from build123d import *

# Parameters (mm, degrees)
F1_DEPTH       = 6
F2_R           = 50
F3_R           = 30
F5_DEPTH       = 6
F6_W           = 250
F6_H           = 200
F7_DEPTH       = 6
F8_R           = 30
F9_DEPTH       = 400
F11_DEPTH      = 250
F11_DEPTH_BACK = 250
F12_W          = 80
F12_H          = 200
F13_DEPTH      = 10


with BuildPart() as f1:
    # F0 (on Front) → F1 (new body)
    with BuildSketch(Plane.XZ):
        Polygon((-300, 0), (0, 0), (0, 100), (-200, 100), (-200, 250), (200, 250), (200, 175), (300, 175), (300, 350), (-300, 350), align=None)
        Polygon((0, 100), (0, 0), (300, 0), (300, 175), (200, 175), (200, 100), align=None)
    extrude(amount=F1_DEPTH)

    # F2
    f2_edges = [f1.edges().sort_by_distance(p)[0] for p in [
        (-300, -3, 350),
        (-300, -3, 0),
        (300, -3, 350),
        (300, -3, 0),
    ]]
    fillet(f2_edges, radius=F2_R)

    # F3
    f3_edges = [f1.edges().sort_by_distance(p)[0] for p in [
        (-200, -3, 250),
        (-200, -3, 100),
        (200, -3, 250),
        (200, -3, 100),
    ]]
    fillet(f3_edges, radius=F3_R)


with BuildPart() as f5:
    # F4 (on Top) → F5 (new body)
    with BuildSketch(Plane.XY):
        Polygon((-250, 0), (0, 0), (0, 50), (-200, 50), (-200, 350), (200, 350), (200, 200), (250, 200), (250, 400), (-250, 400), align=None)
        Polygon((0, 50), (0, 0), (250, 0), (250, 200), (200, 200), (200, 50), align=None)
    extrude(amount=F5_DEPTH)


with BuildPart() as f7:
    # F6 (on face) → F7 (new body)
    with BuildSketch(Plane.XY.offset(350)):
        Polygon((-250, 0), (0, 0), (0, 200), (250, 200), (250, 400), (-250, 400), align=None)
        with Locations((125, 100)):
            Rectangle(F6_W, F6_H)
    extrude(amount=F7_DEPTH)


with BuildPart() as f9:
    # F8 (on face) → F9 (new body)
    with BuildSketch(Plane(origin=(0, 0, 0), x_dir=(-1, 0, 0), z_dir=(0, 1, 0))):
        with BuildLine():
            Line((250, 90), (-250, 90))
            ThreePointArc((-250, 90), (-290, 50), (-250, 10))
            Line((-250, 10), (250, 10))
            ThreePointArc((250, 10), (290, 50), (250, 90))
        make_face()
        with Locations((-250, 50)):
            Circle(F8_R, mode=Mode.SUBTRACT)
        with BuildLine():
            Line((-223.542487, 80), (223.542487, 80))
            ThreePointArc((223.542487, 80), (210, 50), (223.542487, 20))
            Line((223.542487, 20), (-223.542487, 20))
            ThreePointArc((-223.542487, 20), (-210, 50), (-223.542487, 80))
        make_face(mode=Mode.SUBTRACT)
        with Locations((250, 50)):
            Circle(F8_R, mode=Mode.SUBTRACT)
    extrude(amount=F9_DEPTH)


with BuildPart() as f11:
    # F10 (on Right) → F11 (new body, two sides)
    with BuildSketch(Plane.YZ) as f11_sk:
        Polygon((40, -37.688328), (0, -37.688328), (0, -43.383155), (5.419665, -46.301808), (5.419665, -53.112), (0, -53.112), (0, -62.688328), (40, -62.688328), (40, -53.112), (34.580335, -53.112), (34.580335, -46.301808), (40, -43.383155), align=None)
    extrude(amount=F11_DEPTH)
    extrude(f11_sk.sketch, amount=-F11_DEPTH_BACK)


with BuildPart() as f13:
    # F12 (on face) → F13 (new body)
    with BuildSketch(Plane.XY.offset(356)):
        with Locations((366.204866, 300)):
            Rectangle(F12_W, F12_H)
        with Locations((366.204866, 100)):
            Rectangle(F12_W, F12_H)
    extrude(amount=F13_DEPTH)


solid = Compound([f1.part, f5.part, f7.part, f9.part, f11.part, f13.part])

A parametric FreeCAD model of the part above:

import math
import FreeCAD as App
import Part
import Sketcher
from FreeCAD import Vector


def edges_at(feature, points):
    """Names of the edges that pass closest to the given points."""
    edges = feature.Shape.Edges
    near = lambda p: min(range(len(edges)), key=lambda i: edges[i].distToShape(Part.Vertex(*p))[0])
    return sorted({f"Edge{near(p) + 1}" for p in points})

doc = App.newDocument("Part")
body = doc.addObject("PartDesign::Body", "Body")

# Sketch on XZ plane
sketch1 = doc.addObject("Sketcher::SketchObject", "Sketch")
body.addObject(sketch1)
sketch1.AttachmentSupport = (doc.XZ_Plane, [""])
sketch1.MapMode = "FlatFace"
sketch1.addGeometry([
    Part.LineSegment(Vector(-300, 0, 0), Vector(300, 0, 0)),  # 0
    Part.LineSegment(Vector(300, 0, 0), Vector(300, 350, 0)),  # 1
    Part.LineSegment(Vector(300, 350, 0), Vector(-300, 350, 0)),  # 2
    Part.LineSegment(Vector(-300, 350, 0), Vector(-300, 0, 0)),  # 3
    Part.LineSegment(Vector(-200, 100, 0), Vector(-200, 250, 0)),  # 4
    Part.LineSegment(Vector(-200, 250, 0), Vector(200, 250, 0)),  # 5
    Part.LineSegment(Vector(200, 250, 0), Vector(200, 100, 0)),  # 6
    Part.LineSegment(Vector(200, 100, 0), Vector(-200, 100, 0)),  # 7
], False)
sketch1.addConstraint([
    Sketcher.Constraint("Coincident", 0, 2, 1, 1),
    Sketcher.Constraint("Coincident", 1, 2, 2, 1),
    Sketcher.Constraint("Coincident", 2, 2, 3, 1),
    Sketcher.Constraint("Coincident", 3, 2, 0, 1),
    Sketcher.Constraint("Coincident", 4, 2, 5, 1),
    Sketcher.Constraint("Coincident", 5, 2, 6, 1),
    Sketcher.Constraint("Coincident", 6, 2, 7, 1),
    Sketcher.Constraint("Coincident", 7, 2, 4, 1),
    Sketcher.Constraint("Horizontal", 0),
    Sketcher.Constraint("Vertical", 1),
    Sketcher.Constraint("Horizontal", 2),
    Sketcher.Constraint("Vertical", 3),
    Sketcher.Constraint("Vertical", 4),
    Sketcher.Constraint("Horizontal", 5),
    Sketcher.Constraint("Vertical", 6),
    Sketcher.Constraint("Horizontal", 7),
    Sketcher.Constraint("Symmetric", 0, 2, 3, 2, -1, 1),
    Sketcher.Constraint("DistanceX", 0, 1, 0, 2, 600.0),
    Sketcher.Constraint("DistanceX", 5, 1, 5, 2, 400.0),
    Sketcher.Constraint("DistanceY", 1, 1, 1, 2, 350.0),
    Sketcher.Constraint("DistanceY", 4, 1, 4, 2, 150.0),
    Sketcher.Constraint("DistanceX", 4, 2, -1, 1, 200.0),
    Sketcher.Constraint("DistanceY", -1, 1, 4, 2, 250.0),
])
pad1 = doc.addObject("PartDesign::Pad", "Pad")
body.addObject(pad1)
pad1.Profile = sketch1
pad1.Length = 6
doc.recompute()

fillet = doc.addObject("PartDesign::Fillet", "Fillet")
body.addObject(fillet)
fillet.Base = (pad1, edges_at(pad1, [
    (-300, -3, 350),
    (-300, -3, 0),
    (300, -3, 350),
    (300, -3, 0),
]))
fillet.Radius = 50
doc.recompute()

fillet2 = doc.addObject("PartDesign::Fillet", "Fillet001")
body.addObject(fillet2)
fillet2.Base = (fillet, edges_at(fillet, [
    (-200, -3, 250),
    (-200, -3, 100),
    (200, -3, 250),
    (200, -3, 100),
]))
fillet2.Radius = 30
body2 = doc.addObject("PartDesign::Body", "Body001")

# Sketch on XY plane
sketch2 = doc.addObject("Sketcher::SketchObject", "Sketch001")
body2.addObject(sketch2)
sketch2.AttachmentSupport = (doc.getObject("XY_Plane001"), [""])
sketch2.MapMode = "FlatFace"
sketch2.addGeometry([
    Part.LineSegment(Vector(-250, 0, 0), Vector(250, 0, 0)),  # 0
    Part.LineSegment(Vector(250, 0, 0), Vector(250, 400, 0)),  # 1
    Part.LineSegment(Vector(250, 400, 0), Vector(-250, 400, 0)),  # 2
    Part.LineSegment(Vector(-250, 400, 0), Vector(-250, 0, 0)),  # 3
    Part.LineSegment(Vector(-200, 50, 0), Vector(-200, 350, 0)),  # 4
    Part.LineSegment(Vector(-200, 350, 0), Vector(200, 350, 0)),  # 5
    Part.LineSegment(Vector(200, 350, 0), Vector(200, 50, 0)),  # 6
    Part.LineSegment(Vector(200, 50, 0), Vector(-200, 50, 0)),  # 7
], False)
sketch2.addConstraint([
    Sketcher.Constraint("Coincident", 0, 2, 1, 1),
    Sketcher.Constraint("Coincident", 1, 2, 2, 1),
    Sketcher.Constraint("Coincident", 2, 2, 3, 1),
    Sketcher.Constraint("Coincident", 3, 2, 0, 1),
    Sketcher.Constraint("Coincident", 4, 2, 5, 1),
    Sketcher.Constraint("Coincident", 5, 2, 6, 1),
    Sketcher.Constraint("Coincident", 6, 2, 7, 1),
    Sketcher.Constraint("Coincident", 7, 2, 4, 1),
    Sketcher.Constraint("Horizontal", 0),
    Sketcher.Constraint("Vertical", 1),
    Sketcher.Constraint("Horizontal", 2),
    Sketcher.Constraint("Vertical", 3),
    Sketcher.Constraint("Vertical", 4),
    Sketcher.Constraint("Horizontal", 5),
    Sketcher.Constraint("Vertical", 6),
    Sketcher.Constraint("Horizontal", 7),
    Sketcher.Constraint("Symmetric", 0, 2, 3, 2, -1, 1),
    Sketcher.Constraint("Equal", 7, 1),
    Sketcher.Constraint("DistanceX", 0, 1, 0, 2, 500.0),
    Sketcher.Constraint("DistanceX", 5, 1, 5, 2, 400.0),
    Sketcher.Constraint("DistanceY", 4, 1, 4, 2, 300.0),
    Sketcher.Constraint("DistanceX", 4, 2, -1, 1, 200.0),
    Sketcher.Constraint("DistanceY", -1, 1, 4, 2, 350.0),
])
pad2 = doc.addObject("PartDesign::Pad", "Pad001")
body2.addObject(pad2)
pad2.Profile = sketch2
pad2.Length = 6
body3 = doc.addObject("PartDesign::Body", "Body002")

# Sketch on XY plane
sketch3 = doc.addObject("Sketcher::SketchObject", "Sketch002")
body3.addObject(sketch3)
sketch3.AttachmentSupport = (doc.getObject("XY_Plane002"), [""])
sketch3.MapMode = "FlatFace"
sketch3.AttachmentOffset = App.Placement(Vector(0, 0, 350), App.Rotation())
sketch3.addGeometry([
    Part.LineSegment(Vector(-250, 0, 0), Vector(250, 0, 0)),
    Part.LineSegment(Vector(250, 0, 0), Vector(250, 400, 0)),
    Part.LineSegment(Vector(250, 400, 0), Vector(-250, 400, 0)),
    Part.LineSegment(Vector(-250, 400, 0), Vector(-250, 0, 0)),
], False)
sketch3.addConstraint([
    Sketcher.Constraint("Coincident", 0, 2, 1, 1),
    Sketcher.Constraint("Coincident", 1, 2, 2, 1),
    Sketcher.Constraint("Coincident", 2, 2, 3, 1),
    Sketcher.Constraint("Coincident", 3, 2, 0, 1),
    Sketcher.Constraint("Horizontal", 0),
    Sketcher.Constraint("Vertical", 1),
    Sketcher.Constraint("Horizontal", 2),
    Sketcher.Constraint("Vertical", 3),
    Sketcher.Constraint("Symmetric", 0, 2, 3, 2, -1, 1),
    Sketcher.Constraint("DistanceX", 0, 1, 0, 2, 500.0),
    Sketcher.Constraint("DistanceY", 1, 1, 1, 2, 400.0),
])
pad3 = doc.addObject("PartDesign::Pad", "Pad002")
body3.addObject(pad3)
pad3.Profile = sketch3
pad3.Length = 6
body4 = doc.addObject("PartDesign::Body", "Body003")

# Sketch on XZ plane
sketch4 = doc.addObject("Sketcher::SketchObject", "Sketch003")
body4.addObject(sketch4)
sketch4.AttachmentSupport = (doc.getObject("XZ_Plane003"), [""])
sketch4.MapMode = "FlatFace"
sketch4.addGeometry([
    Part.LineSegment(Vector(-250, 90, 0), Vector(250, 90, 0)),  # 0
    Part.ArcOfCircle(Part.Circle(Vector(250, 50, 0), Vector(0, 0, 1), 40), math.radians(-90), math.radians(90)),  # 1
    Part.LineSegment(Vector(250, 10, 0), Vector(-250, 10, 0)),  # 2
    Part.ArcOfCircle(Part.Circle(Vector(-250, 50, 0), Vector(0, 0, 1), 40), math.radians(90), math.radians(270)),  # 3
    Part.Circle(Vector(250, 50, 0), Vector(0, 0, 1), 30),  # 4
    Part.ArcOfCircle(Part.Circle(Vector(250, 50, 0), Vector(0, 0, 1), 40), math.radians(131), math.radians(229)),  # 5
    Part.LineSegment(Vector(224, 80, 0), Vector(-224, 80, 0)),  # 6
    Part.ArcOfCircle(Part.Circle(Vector(-250, 50, 0), Vector(0, 0, 1), 40), math.radians(-49), math.radians(49)),  # 7
    Part.LineSegment(Vector(-224, 20, 0), Vector(224, 20, 0)),  # 8
    Part.Circle(Vector(-250, 50, 0), Vector(0, 0, 1), 30),  # 9
], False)
sketch4.addConstraint([
    Sketcher.Constraint("Tangent", 0, 2, 1, 2),
    Sketcher.Constraint("Tangent", 1, 1, 2, 1),
    Sketcher.Constraint("Tangent", 2, 2, 3, 2),
    Sketcher.Constraint("Tangent", 3, 1, 0, 1),
    Sketcher.Constraint("Coincident", 5, 1, 6, 1),
    Sketcher.Constraint("Coincident", 6, 2, 7, 2),
    Sketcher.Constraint("Coincident", 7, 1, 8, 1),
    Sketcher.Constraint("Coincident", 8, 2, 5, 2),
    Sketcher.Constraint("Horizontal", 0),
    Sketcher.Constraint("Horizontal", 2),
    Sketcher.Constraint("Horizontal", 6),
    Sketcher.Constraint("Horizontal", 8),
    Sketcher.Constraint("Coincident", 4, 3, 1, 3),
    Sketcher.Constraint("Coincident", 5, 3, 1, 3),
    Sketcher.Constraint("Coincident", 7, 3, 3, 3),
    Sketcher.Constraint("Coincident", 9, 3, 3, 3),
    Sketcher.Constraint("Equal", 3, 5),
    Sketcher.Constraint("Equal", 5, 7),
    Sketcher.Constraint("Equal", 4, 9),
    Sketcher.Constraint("Vertical", 6, 2, 7, 1),
    Sketcher.Constraint("Diameter", 4, 60.0),
    Sketcher.Constraint("Radius", 1, 40.0),
    Sketcher.Constraint("DistanceX", 0, 1, 0, 2, 500.0),
    Sketcher.Constraint("DistanceX", -1, 1, 1, 3, 250.0),
    Sketcher.Constraint("DistanceY", -1, 1, 1, 3, 50.0),
    Sketcher.Constraint("DistanceY", -1, 1, 5, 1, 80.0),
])
pad4 = doc.addObject("PartDesign::Pad", "Pad003")
body4.addObject(pad4)
pad4.Profile = sketch4
pad4.Length = 400
pad4.Reversed = True
body5 = doc.addObject("PartDesign::Body", "Body004")

# Sketch on YZ plane
sketch5 = doc.addObject("Sketcher::SketchObject", "Sketch004")
body5.addObject(sketch5)
sketch5.AttachmentSupport = (doc.getObject("YZ_Plane004"), [""])
sketch5.MapMode = "FlatFace"
sketch5.addGeometry([
    Part.LineSegment(Vector(40, -38, 0), Vector(0, -38, 0)),  # 0
    Part.LineSegment(Vector(0, -38, 0), Vector(0, -43, 0)),  # 1
    Part.LineSegment(Vector(0, -43, 0), Vector(5, -46, 0)),  # 2
    Part.LineSegment(Vector(5, -46, 0), Vector(5, -53, 0)),  # 3
    Part.LineSegment(Vector(5, -53, 0), Vector(0, -53, 0)),  # 4
    Part.LineSegment(Vector(0, -53, 0), Vector(0, -63, 0)),  # 5
    Part.LineSegment(Vector(0, -63, 0), Vector(40, -63, 0)),  # 6
    Part.LineSegment(Vector(40, -63, 0), Vector(40, -53, 0)),  # 7
    Part.LineSegment(Vector(40, -53, 0), Vector(35, -53, 0)),  # 8
    Part.LineSegment(Vector(35, -53, 0), Vector(35, -46, 0)),  # 9
    Part.LineSegment(Vector(35, -46, 0), Vector(40, -43, 0)),  # 10
    Part.LineSegment(Vector(40, -43, 0), Vector(40, -38, 0)),  # 11
], False)
sketch5.addConstraint([
    Sketcher.Constraint("Coincident", 0, 2, 1, 1),
    Sketcher.Constraint("Coincident", 1, 2, 2, 1),
    Sketcher.Constraint("Coincident", 2, 2, 3, 1),
    Sketcher.Constraint("Coincident", 3, 2, 4, 1),
    Sketcher.Constraint("Coincident", 4, 2, 5, 1),
    Sketcher.Constraint("Coincident", 5, 2, 6, 1),
    Sketcher.Constraint("Coincident", 6, 2, 7, 1),
    Sketcher.Constraint("Coincident", 7, 2, 8, 1),
    Sketcher.Constraint("Coincident", 8, 2, 9, 1),
    Sketcher.Constraint("Coincident", 9, 2, 10, 1),
    Sketcher.Constraint("Coincident", 10, 2, 11, 1),
    Sketcher.Constraint("Coincident", 11, 2, 0, 1),
    Sketcher.Constraint("Horizontal", 0),
    Sketcher.Constraint("Vertical", 1),
    Sketcher.Constraint("Vertical", 3),
    Sketcher.Constraint("Horizontal", 4),
    Sketcher.Constraint("Vertical", 5),
    Sketcher.Constraint("Horizontal", 6),
    Sketcher.Constraint("Vertical", 7),
    Sketcher.Constraint("Horizontal", 8),
    Sketcher.Constraint("Vertical", 9),
    Sketcher.Constraint("Vertical", 11),
    Sketcher.Constraint("PointOnObject", 0, 2, -2),
    Sketcher.Constraint("PointOnObject", 4, 2, -2),
    Sketcher.Constraint("Horizontal", 4, 2, 7, 2),
    Sketcher.Constraint("Horizontal", 2, 2, 9, 2),
    Sketcher.Constraint("Horizontal", 1, 2, 10, 2),
    Sketcher.Constraint("Vertical", 7, 2, 10, 2),
    Sketcher.Constraint("Equal", 4, 8),
    Sketcher.Constraint("DistanceX", 0, 2, 0, 1, 40.0),
    Sketcher.Constraint("DistanceY", 5, 2, 0, 2, 25.0),
    Sketcher.Constraint("DistanceY", 3, 2, -1, 1, 53.112),
    Sketcher.Constraint("Distance", 2, 6.155591),
    Sketcher.Constraint("DistanceX", 4, 2, 4, 1, 5.419665),
    Sketcher.Constraint("DistanceY", 1, 2, 1, 1, 5.694827),
    Sketcher.Constraint("DistanceY", 3, 2, 3, 1, 6.810192),
])
pad5 = doc.addObject("PartDesign::Pad", "Pad004")
body5.addObject(pad5)
pad5.Profile = sketch5
pad5.Type = "TwoLengths"
pad5.Length = 250
pad5.Length2 = 250
body6 = doc.addObject("PartDesign::Body", "Body005")

# Sketch on XY plane
sketch6 = doc.addObject("Sketcher::SketchObject", "Sketch005")
body6.addObject(sketch6)
sketch6.AttachmentSupport = (doc.getObject("XY_Plane005"), [""])
sketch6.MapMode = "FlatFace"
sketch6.AttachmentOffset = App.Placement(Vector(0, 0, 356), App.Rotation())
sketch6.addGeometry([
    Part.LineSegment(Vector(326, 400, 0), Vector(326, 0, 0)),
    Part.LineSegment(Vector(326, 0, 0), Vector(406, 0, 0)),
    Part.LineSegment(Vector(406, 0, 0), Vector(406, 400, 0)),
    Part.LineSegment(Vector(406, 400, 0), Vector(326, 400, 0)),
], False)
sketch6.addConstraint([
    Sketcher.Constraint("Coincident", 0, 2, 1, 1),
    Sketcher.Constraint("Coincident", 1, 2, 2, 1),
    Sketcher.Constraint("Coincident", 2, 2, 3, 1),
    Sketcher.Constraint("Coincident", 3, 2, 0, 1),
    Sketcher.Constraint("Vertical", 0),
    Sketcher.Constraint("Horizontal", 1),
    Sketcher.Constraint("Vertical", 2),
    Sketcher.Constraint("Horizontal", 3),
    Sketcher.Constraint("PointOnObject", 0, 2, -1),
    Sketcher.Constraint("DistanceX", 1, 1, 1, 2, 80.0),
    Sketcher.Constraint("DistanceY", 0, 2, 0, 1, 400.0),
    Sketcher.Constraint("DistanceX", -1, 1, 0, 2, 326.204866),
])
pad6 = doc.addObject("PartDesign::Pad", "Pad005")
body6.addObject(pad6)
pad6.Profile = sketch6
pad6.Length = 10

doc.recompute()
